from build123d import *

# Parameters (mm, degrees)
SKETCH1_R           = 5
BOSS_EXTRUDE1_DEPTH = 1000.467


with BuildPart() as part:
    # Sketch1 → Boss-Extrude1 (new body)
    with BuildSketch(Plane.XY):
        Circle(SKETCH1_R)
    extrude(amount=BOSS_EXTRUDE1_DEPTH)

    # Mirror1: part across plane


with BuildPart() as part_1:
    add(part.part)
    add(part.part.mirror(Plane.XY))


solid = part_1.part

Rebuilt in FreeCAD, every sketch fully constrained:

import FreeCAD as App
import Part
import Sketcher

doc = App.newDocument("Part")
body = doc.addObject("PartDesign::Body", "Body")

sketch1 = body.newObject("Sketcher::SketchObject", "Sketch")
sketch1.AttachmentSupport = (doc.getObject("XY_Plane"), [""])
sketch1.MapMode = "FlatFace"
sketch1.addGeometry(Part.Circle(App.Vector(0, 0, 0), App.Vector(0, 0, 1), 5), False)
sketch1.addConstraint(Sketcher.Constraint("Coincident", 0, 3, -1, 1))
sketch1.addConstraint(Sketcher.Constraint("Diameter", 0, 10.0))
pad1 = body.newObject("PartDesign::Pad", "Pad")
pad1.Profile = sketch1
pad1.Length = 1000.467
body2 = doc.addObject("PartDesign::Body", "Body001")
doc.recompute()

body2.BaseFeature = body
doc.recompute()

mirroring = doc.addObject("Part::Mirroring", "Mirroring")
mirroring.Source = body
mirroring.Base = App.Vector(0, 0, 0)
mirroring.Normal = App.Vector(0, 0, 1)
body3 = doc.addObject("PartDesign::Body", "Body002")
body3.BaseFeature = mirroring
boolean = body2.newObject("PartDesign::Boolean", "Boolean")
boolean.Type = "Fuse"
boolean.addObjects([body3])
doc.recompute()
mirroring.Visibility = False

doc.recompute()
